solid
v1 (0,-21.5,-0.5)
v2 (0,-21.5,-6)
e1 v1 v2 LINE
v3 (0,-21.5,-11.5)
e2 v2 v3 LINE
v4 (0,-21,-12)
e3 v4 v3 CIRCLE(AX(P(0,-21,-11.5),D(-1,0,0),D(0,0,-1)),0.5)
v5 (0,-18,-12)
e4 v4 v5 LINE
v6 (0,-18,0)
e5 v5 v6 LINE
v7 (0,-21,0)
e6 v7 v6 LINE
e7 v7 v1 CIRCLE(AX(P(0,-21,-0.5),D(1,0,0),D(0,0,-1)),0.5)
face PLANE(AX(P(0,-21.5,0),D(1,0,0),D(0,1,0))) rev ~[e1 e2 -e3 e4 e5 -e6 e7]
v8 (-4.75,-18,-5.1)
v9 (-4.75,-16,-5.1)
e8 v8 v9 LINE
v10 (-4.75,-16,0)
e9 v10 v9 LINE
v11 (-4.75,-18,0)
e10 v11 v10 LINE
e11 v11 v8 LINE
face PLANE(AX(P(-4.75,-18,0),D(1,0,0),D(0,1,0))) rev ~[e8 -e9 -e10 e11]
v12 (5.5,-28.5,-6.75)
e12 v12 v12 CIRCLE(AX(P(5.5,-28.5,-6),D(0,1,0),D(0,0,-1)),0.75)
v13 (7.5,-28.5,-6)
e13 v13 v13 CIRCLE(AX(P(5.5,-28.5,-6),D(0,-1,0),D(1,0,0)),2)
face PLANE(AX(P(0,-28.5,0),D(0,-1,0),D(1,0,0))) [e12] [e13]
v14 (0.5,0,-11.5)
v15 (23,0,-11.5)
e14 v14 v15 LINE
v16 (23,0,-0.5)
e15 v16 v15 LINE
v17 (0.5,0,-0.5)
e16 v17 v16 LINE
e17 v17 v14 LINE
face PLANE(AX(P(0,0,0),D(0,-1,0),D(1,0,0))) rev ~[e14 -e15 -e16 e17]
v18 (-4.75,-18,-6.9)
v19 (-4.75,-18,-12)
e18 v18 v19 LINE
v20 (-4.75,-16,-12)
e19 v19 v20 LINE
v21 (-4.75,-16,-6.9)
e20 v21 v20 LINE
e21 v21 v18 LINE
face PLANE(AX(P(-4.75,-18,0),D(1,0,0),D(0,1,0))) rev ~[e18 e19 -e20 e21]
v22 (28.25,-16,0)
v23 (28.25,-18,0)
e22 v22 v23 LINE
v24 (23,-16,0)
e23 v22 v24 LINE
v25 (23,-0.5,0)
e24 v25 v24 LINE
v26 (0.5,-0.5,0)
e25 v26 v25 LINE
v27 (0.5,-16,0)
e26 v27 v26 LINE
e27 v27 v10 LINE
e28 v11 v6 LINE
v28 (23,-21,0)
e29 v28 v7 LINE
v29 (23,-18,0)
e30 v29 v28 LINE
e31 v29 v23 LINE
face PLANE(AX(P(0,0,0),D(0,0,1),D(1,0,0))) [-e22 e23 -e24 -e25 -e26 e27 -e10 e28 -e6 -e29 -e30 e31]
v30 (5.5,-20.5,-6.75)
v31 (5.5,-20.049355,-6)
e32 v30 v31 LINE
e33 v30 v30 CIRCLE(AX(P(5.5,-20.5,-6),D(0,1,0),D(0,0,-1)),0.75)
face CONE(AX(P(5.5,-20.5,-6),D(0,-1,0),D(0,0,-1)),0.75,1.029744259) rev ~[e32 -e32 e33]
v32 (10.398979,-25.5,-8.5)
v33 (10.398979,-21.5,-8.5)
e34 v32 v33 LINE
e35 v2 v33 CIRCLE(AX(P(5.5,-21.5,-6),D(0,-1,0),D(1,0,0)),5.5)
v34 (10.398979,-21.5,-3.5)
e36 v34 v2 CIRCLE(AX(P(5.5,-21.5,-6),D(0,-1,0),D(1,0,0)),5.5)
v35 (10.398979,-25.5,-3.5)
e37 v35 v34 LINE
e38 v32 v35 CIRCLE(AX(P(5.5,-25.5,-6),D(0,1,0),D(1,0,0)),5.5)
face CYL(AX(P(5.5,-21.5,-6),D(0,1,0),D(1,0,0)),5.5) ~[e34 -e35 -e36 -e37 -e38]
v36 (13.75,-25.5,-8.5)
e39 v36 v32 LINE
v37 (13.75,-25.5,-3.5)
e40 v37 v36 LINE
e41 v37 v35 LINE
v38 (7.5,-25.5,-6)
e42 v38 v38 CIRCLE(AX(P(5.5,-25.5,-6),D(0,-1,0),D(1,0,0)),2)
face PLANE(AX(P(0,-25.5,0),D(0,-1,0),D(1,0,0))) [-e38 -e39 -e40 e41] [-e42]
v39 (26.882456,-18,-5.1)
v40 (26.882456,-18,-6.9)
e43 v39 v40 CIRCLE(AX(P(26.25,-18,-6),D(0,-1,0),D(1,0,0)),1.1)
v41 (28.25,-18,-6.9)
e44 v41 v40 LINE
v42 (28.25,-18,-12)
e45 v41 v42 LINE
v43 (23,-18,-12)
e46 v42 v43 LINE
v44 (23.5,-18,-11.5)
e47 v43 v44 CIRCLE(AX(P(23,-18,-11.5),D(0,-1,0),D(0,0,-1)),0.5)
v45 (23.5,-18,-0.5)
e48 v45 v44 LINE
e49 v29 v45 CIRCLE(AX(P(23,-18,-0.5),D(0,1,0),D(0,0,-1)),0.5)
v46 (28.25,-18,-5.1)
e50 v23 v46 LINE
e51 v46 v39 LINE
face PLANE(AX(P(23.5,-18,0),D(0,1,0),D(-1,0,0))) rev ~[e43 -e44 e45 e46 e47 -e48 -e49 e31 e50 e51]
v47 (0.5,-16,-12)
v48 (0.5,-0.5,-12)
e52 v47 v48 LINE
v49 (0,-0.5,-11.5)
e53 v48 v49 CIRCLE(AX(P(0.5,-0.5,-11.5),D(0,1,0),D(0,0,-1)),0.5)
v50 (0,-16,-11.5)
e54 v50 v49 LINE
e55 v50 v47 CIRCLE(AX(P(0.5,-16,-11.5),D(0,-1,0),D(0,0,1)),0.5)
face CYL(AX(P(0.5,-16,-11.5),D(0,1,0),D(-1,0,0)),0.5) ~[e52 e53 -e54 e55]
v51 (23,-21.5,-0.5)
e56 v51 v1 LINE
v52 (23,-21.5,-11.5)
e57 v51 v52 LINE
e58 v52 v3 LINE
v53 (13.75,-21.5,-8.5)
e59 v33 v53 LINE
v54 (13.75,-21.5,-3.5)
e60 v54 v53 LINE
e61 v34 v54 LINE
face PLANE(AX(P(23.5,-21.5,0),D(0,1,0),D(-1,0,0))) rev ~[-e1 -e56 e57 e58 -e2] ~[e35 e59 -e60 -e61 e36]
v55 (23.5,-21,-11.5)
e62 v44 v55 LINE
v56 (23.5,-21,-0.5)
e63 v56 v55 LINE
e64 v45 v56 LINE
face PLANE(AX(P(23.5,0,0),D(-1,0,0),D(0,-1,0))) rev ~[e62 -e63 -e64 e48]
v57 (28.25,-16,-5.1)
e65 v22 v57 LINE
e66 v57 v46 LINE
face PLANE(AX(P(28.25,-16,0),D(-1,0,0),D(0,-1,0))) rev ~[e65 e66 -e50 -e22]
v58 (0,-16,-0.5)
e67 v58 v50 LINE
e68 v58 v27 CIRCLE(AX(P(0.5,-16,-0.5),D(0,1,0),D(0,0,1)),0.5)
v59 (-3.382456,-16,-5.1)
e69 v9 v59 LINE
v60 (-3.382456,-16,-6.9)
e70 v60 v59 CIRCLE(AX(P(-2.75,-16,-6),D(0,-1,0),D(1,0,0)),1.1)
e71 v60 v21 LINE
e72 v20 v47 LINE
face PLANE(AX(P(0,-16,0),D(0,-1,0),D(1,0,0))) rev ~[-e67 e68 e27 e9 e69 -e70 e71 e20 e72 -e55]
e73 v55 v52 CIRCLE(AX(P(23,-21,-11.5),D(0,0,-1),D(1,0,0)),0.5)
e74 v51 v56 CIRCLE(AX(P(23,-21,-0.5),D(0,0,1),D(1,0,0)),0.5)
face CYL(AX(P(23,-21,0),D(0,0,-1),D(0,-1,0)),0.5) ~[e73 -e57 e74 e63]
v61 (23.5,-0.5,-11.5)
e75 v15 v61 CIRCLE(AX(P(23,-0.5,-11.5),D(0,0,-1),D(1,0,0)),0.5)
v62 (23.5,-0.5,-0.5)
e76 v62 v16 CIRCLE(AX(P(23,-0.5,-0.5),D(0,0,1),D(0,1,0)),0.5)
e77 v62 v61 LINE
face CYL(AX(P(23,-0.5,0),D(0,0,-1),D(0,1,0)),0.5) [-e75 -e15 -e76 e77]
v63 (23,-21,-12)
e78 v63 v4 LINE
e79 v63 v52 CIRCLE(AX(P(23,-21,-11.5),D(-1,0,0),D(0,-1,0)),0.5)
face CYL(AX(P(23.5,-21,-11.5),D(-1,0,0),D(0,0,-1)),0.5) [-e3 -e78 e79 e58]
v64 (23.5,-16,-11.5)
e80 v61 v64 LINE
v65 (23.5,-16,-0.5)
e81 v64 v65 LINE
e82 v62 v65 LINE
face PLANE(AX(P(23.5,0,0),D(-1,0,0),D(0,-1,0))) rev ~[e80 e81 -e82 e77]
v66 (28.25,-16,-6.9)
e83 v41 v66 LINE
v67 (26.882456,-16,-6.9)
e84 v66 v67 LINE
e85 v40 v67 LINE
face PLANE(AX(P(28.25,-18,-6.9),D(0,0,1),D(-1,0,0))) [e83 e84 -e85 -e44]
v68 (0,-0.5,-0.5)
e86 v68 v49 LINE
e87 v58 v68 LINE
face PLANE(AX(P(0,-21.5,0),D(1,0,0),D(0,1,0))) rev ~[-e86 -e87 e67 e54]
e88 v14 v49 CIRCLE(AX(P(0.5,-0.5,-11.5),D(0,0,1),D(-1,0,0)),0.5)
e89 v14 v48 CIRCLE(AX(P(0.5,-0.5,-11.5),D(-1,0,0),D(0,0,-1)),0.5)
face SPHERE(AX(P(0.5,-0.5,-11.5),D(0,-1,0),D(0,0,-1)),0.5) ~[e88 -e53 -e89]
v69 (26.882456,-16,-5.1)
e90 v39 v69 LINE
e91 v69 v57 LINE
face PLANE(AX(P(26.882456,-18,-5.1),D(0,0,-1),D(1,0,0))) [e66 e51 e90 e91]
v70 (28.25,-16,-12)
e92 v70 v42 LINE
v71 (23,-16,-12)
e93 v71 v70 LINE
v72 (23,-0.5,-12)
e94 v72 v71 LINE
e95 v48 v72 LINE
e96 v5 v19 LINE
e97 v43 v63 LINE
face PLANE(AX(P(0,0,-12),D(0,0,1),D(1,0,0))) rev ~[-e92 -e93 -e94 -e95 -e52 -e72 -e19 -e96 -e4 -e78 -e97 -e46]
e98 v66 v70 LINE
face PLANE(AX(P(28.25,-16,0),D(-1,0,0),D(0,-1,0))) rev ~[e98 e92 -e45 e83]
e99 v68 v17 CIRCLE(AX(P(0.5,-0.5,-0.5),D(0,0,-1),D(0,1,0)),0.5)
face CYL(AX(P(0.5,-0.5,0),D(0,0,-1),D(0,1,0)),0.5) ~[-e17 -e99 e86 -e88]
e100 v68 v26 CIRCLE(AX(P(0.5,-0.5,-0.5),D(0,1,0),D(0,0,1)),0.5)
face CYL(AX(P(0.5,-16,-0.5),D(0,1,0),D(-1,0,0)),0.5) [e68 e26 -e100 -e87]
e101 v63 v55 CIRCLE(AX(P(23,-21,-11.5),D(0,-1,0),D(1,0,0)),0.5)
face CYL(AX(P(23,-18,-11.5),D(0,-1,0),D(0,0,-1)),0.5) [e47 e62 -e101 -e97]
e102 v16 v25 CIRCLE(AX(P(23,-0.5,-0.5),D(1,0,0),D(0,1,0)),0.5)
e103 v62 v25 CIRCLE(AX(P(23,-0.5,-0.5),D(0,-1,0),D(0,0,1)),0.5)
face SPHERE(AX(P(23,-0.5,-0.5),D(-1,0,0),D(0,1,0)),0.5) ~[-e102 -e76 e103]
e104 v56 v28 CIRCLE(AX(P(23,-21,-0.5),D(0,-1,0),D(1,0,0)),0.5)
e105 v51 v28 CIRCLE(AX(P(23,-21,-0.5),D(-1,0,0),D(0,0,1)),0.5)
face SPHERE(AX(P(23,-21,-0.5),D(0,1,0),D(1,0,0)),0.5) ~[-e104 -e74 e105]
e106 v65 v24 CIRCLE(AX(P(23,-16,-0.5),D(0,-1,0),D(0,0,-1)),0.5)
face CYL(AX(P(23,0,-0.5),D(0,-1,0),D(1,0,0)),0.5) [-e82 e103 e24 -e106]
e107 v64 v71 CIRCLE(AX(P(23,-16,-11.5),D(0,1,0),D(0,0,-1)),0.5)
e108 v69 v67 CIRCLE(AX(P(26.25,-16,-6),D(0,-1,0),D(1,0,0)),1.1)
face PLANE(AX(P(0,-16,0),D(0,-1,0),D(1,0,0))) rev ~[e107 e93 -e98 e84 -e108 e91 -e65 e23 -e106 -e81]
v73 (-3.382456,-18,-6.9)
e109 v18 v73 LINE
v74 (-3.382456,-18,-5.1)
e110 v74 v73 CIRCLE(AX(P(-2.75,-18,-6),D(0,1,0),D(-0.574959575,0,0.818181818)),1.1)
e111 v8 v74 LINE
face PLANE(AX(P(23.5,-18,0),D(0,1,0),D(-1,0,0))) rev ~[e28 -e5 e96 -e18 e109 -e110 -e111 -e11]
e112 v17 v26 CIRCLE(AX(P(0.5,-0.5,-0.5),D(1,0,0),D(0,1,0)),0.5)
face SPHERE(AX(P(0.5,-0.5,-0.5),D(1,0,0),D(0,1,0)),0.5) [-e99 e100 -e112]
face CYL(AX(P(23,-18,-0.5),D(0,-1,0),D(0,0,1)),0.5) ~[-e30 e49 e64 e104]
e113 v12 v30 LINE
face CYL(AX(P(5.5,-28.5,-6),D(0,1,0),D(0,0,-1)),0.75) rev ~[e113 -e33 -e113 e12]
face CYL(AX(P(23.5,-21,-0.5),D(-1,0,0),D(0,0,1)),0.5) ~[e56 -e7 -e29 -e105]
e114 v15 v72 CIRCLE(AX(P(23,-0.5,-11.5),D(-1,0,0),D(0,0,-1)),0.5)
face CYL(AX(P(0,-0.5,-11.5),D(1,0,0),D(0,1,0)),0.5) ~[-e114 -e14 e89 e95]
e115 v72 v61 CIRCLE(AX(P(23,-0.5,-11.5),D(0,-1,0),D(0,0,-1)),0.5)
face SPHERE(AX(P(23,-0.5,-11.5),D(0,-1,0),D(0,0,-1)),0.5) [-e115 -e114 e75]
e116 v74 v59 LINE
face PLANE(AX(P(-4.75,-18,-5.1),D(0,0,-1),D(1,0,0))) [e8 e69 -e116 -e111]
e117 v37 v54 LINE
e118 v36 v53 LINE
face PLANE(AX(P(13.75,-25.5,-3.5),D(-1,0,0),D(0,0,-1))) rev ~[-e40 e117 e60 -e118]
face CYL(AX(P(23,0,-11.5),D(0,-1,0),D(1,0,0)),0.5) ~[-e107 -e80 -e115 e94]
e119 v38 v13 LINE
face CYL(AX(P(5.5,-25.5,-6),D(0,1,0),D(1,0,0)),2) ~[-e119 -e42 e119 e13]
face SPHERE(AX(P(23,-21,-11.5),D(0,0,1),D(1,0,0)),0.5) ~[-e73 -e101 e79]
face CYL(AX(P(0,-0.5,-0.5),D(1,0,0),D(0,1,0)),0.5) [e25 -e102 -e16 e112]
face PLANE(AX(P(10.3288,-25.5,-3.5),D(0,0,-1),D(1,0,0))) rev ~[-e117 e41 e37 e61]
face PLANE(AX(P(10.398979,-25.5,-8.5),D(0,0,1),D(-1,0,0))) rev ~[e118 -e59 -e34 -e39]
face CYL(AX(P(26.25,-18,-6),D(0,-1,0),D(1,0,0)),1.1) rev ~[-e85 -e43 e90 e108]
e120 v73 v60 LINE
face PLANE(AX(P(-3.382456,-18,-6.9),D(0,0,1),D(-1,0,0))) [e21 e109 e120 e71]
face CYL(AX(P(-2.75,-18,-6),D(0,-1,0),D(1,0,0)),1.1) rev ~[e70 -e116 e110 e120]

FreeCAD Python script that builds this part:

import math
import FreeCAD as App
import Part
import Sketcher

V = App.Vector


def edges_at(feature, points):
    """Names of the edges that pass closest to the given points."""
    edges = feature.Shape.Edges
    near = lambda p: min(range(len(edges)), key=lambda i: edges[i].distToShape(Part.Vertex(*p))[0])
    return sorted({f"Edge{near(p) + 1}" for p in points})


def add_polygon(sketch, points):
    """Adds a closed chain of lines whose ends are joined by coincident constraints."""
    first, n = sketch.GeometryCount, len(points)
    for a, b in zip(points, points[1:] + points[:1]):
        sketch.addGeometry(Part.LineSegment(App.Vector(*a, 0), App.Vector(*b, 0)), False)
    for i in range(n):
        sketch.addConstraint(Sketcher.Constraint("Coincident", first + i, 2, first + (i + 1) % n, 1))

doc = App.newDocument("Part")
body = doc.addObject("PartDesign::Body", "Body")

# Sketch on XY plane
sketch1 = body.newObject("Sketcher::SketchObject", "Sketch")
sketch1.AttachmentSupport = (doc.getObject("XY_Plane"), [""])
sketch1.MapMode = "FlatFace"
add_polygon(sketch1, [(24, 0), (0, 0), (0, -22), (24, -22)])  # lines 0-3
sketch1.addConstraint(Sketcher.Constraint("Horizontal", 0))
sketch1.addConstraint(Sketcher.Constraint("Vertical", 1))
sketch1.addConstraint(Sketcher.Constraint("Horizontal", 2))
sketch1.addConstraint(Sketcher.Constraint("Vertical", 3))
sketch1.addConstraint(Sketcher.Constraint("Coincident", 0, 2, -1, 1))
sketch1.addConstraint(Sketcher.Constraint("DistanceX", 0, 2, 0, 1, 23.5))
sketch1.addConstraint(Sketcher.Constraint("DistanceY", 1, 2, 1, 1, 21.5))
pad1 = body.newObject("PartDesign::Pad", "Pad")
pad1.Profile = sketch1
pad1.Length = 12
pad1.Reversed = True

# Sketch on XY plane
sketch2 = body.newObject("Sketcher::SketchObject", "Sketch001")
sketch2.AttachmentSupport = (doc.getObject("XY_Plane"), [""])
sketch2.MapMode = "FlatFace"
add_polygon(sketch2, [(-4.8, -16), (-4.8, -18), (28.2, -18), (28.2, -16)])  # lines 0-3
sketch2.addConstraint(Sketcher.Constraint("Vertical", 0))
sketch2.addConstraint(Sketcher.Constraint("Horizontal", 1))
sketch2.addConstraint(Sketcher.Constraint("Vertical", 2))
sketch2.addConstraint(Sketcher.Constraint("Horizontal", 3))
sketch2.addConstraint(Sketcher.Constraint("DistanceY", 0, 2, 0, 1, 2.0))
sketch2.addConstraint(Sketcher.Constraint("DistanceY", 2, 2, -1, 1, 16.0))
sketch2.addConstraint(Sketcher.Constraint("DistanceX", 1, 1, 1, 2, 33.0))
sketch2.addConstraint(Sketcher.Constraint("DistanceX", 0, 2, -1, 1, 4.75))
pad2 = body.newObject("PartDesign::Pad", "Pad001")
pad2.Profile = sketch2
pad2.Length = 12
pad2.Reversed = True

# Sketch on XZ plane
sketch3 = body.newObject("Sketcher::SketchObject", "Sketch002")
sketch3.AttachmentSupport = (doc.getObject("XZ_Plane"), [""])
sketch3.MapMode = "FlatFace"
sketch3.AttachmentOffset = App.Placement(V(0, 0, 21.5), App.Rotation())
sketch3.addGeometry(Part.Circle(V(6, -6, 0), V(0, 0, 1), 6), False)
sketch3.addConstraint(Sketcher.Constraint("Diameter", 0, 11.0))
sketch3.addConstraint(Sketcher.Constraint("DistanceX", -1, 1, 0, 3, 5.5))
sketch3.addConstraint(Sketcher.Constraint("DistanceY", 0, 3, -1, 1, 6.0))
pad3 = body.newObject("PartDesign::Pad", "Pad002")
pad3.Profile = sketch3
pad3.Length = 4

# Sketch on XZ plane
sketch4 = body.newObject("Sketcher::SketchObject", "Sketch003")
sketch4.AttachmentSupport = (doc.getObject("XZ_Plane"), [""])
sketch4.MapMode = "FlatFace"
sketch4.AttachmentOffset = App.Placement(V(0, 0, 25.5), App.Rotation())
add_polygon(sketch4, [(10.3, -8.5), (13.8, -8.5), (13.8, -3.5), (10.3, -3.5)])  # lines 0-3
sketch4.addConstraint(Sketcher.Constraint("Horizontal", 0))
sketch4.addConstraint(Sketcher.Constraint("Vertical", 1))
sketch4.addConstraint(Sketcher.Constraint("Horizontal", 2))
sketch4.addConstraint(Sketcher.Constraint("Vertical", 3))
sketch4.addConstraint(Sketcher.Constraint("DistanceY", 1, 1, 1, 2, 5.0))
sketch4.addConstraint(Sketcher.Constraint("DistanceY", 0, 2, -1, 1, 8.5))
sketch4.addConstraint(Sketcher.Constraint("DistanceX", -1, 1, 0, 2, 13.75))
sketch4.addConstraint(Sketcher.Constraint("DistanceX", 0, 1, 0, 2, 3.4212))
pad4 = body.newObject("PartDesign::Pad", "Pad003")
pad4.Profile = sketch4
pad4.Length = 4
pad4.Reversed = True

# Sketch on XZ plane
sketch5 = body.newObject("Sketcher::SketchObject", "Sketch004")
sketch5.AttachmentSupport = (doc.getObject("XZ_Plane"), [""])
sketch5.MapMode = "FlatFace"
sketch5.AttachmentOffset = App.Placement(V(0, 0, 25.5), App.Rotation())
sketch5.addGeometry(Part.Circle(V(5.5, -6, 0), V(0, 0, 1), 2), False)
sketch5.addConstraint(Sketcher.Constraint("Diameter", 0, 4.0))
sketch5.addConstraint(Sketcher.Constraint("DistanceY", 0, 3, -1, 1, 6.0))
sketch5.addConstraint(Sketcher.Constraint("DistanceX", -1, 1, 0, 3, 5.5))
pad5 = body.newObject("PartDesign::Pad", "Pad004")
pad5.Profile = sketch5
pad5.Length = 3

# Sketch on XZ plane
sketch6 = body.newObject("Sketcher::SketchObject", "Sketch005")
sketch6.AttachmentSupport = (doc.getObject("XZ_Plane"), [""])
sketch6.MapMode = "FlatFace"
sketch6.AttachmentOffset = App.Placement(V(0, 0, 18), App.Rotation())
sketch6.addGeometry(Part.LineSegment(V(-3.4, -5.1, 0), V(-8.1, -5.1, 0)), False)
sketch6.addGeometry(Part.LineSegment(V(-8.1, -5.1, 0), V(-8.1, -6.9, 0)), False)
sketch6.addGeometry(Part.LineSegment(V(-8.1, -6.9, 0), V(-3.4, -6.9, 0)), False)
sketch6.addGeometry(Part.ArcOfCircle(Part.Circle(V(-2.8, -6, 0), V(0, 0, 1), 1.1), math.radians(-125), math.radians(125)), False)
sketch6.addGeometry(Part.LineSegment(V(26.9, -6.9, 0), V(32.9, -6.9, 0)), False)
sketch6.addGeometry(Part.LineSegment(V(32.9, -6.9, 0), V(32.9, -5.1, 0)), False)
sketch6.addGeometry(Part.LineSegment(V(32.9, -5.1, 0), V(26.9, -5.1, 0)), False)
sketch6.addGeometry(Part.ArcOfCircle(Part.Circle(V(26.2, -6, 0), V(0, 0, 1), 1.1), math.radians(55), math.radians(305)), False)
sketch6.addConstraint(Sketcher.Constraint("Coincident", 0, 2, 1, 1))
sketch6.addConstraint(Sketcher.Constraint("Coincident", 1, 2, 2, 1))
sketch6.addConstraint(Sketcher.Constraint("Coincident", 2, 2, 3, 1))
sketch6.addConstraint(Sketcher.Constraint("Coincident", 3, 2, 0, 1))
sketch6.addConstraint(Sketcher.Constraint("Coincident", 4, 2, 5, 1))
sketch6.addConstraint(Sketcher.Constraint("Coincident", 5, 2, 6, 1))
sketch6.addConstraint(Sketcher.Constraint("Coincident", 6, 2, 7, 1))
sketch6.addConstraint(Sketcher.Constraint("Coincident", 7, 2, 4, 1))
sketch6.addConstraint(Sketcher.Constraint("Horizontal", 0))
sketch6.addConstraint(Sketcher.Constraint("Vertical", 1))
sketch6.addConstraint(Sketcher.Constraint("Horizontal", 2))
sketch6.addConstraint(Sketcher.Constraint("Horizontal", 4))
sketch6.addConstraint(Sketcher.Constraint("Vertical", 5))
sketch6.addConstraint(Sketcher.Constraint("Horizontal", 6))
sketch6.addConstraint(Sketcher.Constraint("Equal", 3, 7))
sketch6.addConstraint(Sketcher.Constraint("Horizontal", 3, 3, 7, 3))
sketch6.addConstraint(Sketcher.Constraint("Horizontal", 2, 2, 4, 2))
sketch6.addConstraint(Sketcher.Constraint("Horizontal", 3, 2, 5, 2))
sketch6.addConstraint(Sketcher.Constraint("Vertical", 2, 2, 3, 2))
sketch6.addConstraint(Sketcher.Constraint("Radius", 3, 1.1))
sketch6.addConstraint(Sketcher.Constraint("DistanceY", 1, 2, 1, 1, 1.8))
sketch6.addConstraint(Sketcher.Constraint("DistanceY", 3, 3, -1, 1, 6.0))
sketch6.addConstraint(Sketcher.Constraint("DistanceX", 3, 3, 7, 3, 29.0))
sketch6.addConstraint(Sketcher.Constraint("DistanceX", 3, 3, -1, 1, 2.75))
sketch6.addConstraint(Sketcher.Constraint("DistanceX", 0, 2, 0, 1, 4.6827))
sketch6.addConstraint(Sketcher.Constraint("DistanceX", 4, 1, 4, 2, 5.9952))
pocket1 = body.newObject("PartDesign::Pocket", "Pocket")
pocket1.Profile = sketch6
pocket1.Type = "ThroughAll"
doc.recompute()

fillet = body.newObject("PartDesign::Fillet", "Fillet")
fillet.Base = (pocket1, edges_at(pocket1, [
    (0, -8, -12),
    (23.5, -8, -12),
    (11.75, 0, -12),
    (11.75, 0, 0),
    (0, 0, -6),
    (23.5, 0, -6),
    (0, -8, 0),
    (23.5, -8, 0),
    (23.5, -19.75, 0),
    (23.5, -21.5, -6),
    (23.5, -19.75, -12),
    (11.75, -21.5, -12),
    (11.75, -21.5, 0),
]))
fillet.Radius = 0.5

# Sketch on XZ plane
sketch7 = body.newObject("Sketcher::SketchObject", "Sketch006")
sketch7.AttachmentSupport = (doc.getObject("XZ_Plane"), [""])
sketch7.MapMode = "FlatFace"
sketch7.AttachmentOffset = App.Placement(V(0, 0, 28.5), App.Rotation())
sketch7.addGeometry(Part.Circle(V(5.5, -6, 0), V(0, 0, 1), 0.8), False)
sketch7.addConstraint(Sketcher.Constraint("Diameter", 0, 1.5))
sketch7.addConstraint(Sketcher.Constraint("DistanceY", 0, 3, -1, 1, 6.0))
sketch7.addConstraint(Sketcher.Constraint("DistanceX", -1, 1, 0, 3, 5.5))
doc.recompute()
hole = body.newObject("PartDesign::Hole", "Hole")
hole.Profile = sketch7
hole.ThreadType = "None"
hole.Diameter = 1.5
hole.DepthType = "Dimension"
hole.Depth = 8
hole.DrillPoint = "Angled"
hole.DrillPointAngle = 118

doc.recompute()
